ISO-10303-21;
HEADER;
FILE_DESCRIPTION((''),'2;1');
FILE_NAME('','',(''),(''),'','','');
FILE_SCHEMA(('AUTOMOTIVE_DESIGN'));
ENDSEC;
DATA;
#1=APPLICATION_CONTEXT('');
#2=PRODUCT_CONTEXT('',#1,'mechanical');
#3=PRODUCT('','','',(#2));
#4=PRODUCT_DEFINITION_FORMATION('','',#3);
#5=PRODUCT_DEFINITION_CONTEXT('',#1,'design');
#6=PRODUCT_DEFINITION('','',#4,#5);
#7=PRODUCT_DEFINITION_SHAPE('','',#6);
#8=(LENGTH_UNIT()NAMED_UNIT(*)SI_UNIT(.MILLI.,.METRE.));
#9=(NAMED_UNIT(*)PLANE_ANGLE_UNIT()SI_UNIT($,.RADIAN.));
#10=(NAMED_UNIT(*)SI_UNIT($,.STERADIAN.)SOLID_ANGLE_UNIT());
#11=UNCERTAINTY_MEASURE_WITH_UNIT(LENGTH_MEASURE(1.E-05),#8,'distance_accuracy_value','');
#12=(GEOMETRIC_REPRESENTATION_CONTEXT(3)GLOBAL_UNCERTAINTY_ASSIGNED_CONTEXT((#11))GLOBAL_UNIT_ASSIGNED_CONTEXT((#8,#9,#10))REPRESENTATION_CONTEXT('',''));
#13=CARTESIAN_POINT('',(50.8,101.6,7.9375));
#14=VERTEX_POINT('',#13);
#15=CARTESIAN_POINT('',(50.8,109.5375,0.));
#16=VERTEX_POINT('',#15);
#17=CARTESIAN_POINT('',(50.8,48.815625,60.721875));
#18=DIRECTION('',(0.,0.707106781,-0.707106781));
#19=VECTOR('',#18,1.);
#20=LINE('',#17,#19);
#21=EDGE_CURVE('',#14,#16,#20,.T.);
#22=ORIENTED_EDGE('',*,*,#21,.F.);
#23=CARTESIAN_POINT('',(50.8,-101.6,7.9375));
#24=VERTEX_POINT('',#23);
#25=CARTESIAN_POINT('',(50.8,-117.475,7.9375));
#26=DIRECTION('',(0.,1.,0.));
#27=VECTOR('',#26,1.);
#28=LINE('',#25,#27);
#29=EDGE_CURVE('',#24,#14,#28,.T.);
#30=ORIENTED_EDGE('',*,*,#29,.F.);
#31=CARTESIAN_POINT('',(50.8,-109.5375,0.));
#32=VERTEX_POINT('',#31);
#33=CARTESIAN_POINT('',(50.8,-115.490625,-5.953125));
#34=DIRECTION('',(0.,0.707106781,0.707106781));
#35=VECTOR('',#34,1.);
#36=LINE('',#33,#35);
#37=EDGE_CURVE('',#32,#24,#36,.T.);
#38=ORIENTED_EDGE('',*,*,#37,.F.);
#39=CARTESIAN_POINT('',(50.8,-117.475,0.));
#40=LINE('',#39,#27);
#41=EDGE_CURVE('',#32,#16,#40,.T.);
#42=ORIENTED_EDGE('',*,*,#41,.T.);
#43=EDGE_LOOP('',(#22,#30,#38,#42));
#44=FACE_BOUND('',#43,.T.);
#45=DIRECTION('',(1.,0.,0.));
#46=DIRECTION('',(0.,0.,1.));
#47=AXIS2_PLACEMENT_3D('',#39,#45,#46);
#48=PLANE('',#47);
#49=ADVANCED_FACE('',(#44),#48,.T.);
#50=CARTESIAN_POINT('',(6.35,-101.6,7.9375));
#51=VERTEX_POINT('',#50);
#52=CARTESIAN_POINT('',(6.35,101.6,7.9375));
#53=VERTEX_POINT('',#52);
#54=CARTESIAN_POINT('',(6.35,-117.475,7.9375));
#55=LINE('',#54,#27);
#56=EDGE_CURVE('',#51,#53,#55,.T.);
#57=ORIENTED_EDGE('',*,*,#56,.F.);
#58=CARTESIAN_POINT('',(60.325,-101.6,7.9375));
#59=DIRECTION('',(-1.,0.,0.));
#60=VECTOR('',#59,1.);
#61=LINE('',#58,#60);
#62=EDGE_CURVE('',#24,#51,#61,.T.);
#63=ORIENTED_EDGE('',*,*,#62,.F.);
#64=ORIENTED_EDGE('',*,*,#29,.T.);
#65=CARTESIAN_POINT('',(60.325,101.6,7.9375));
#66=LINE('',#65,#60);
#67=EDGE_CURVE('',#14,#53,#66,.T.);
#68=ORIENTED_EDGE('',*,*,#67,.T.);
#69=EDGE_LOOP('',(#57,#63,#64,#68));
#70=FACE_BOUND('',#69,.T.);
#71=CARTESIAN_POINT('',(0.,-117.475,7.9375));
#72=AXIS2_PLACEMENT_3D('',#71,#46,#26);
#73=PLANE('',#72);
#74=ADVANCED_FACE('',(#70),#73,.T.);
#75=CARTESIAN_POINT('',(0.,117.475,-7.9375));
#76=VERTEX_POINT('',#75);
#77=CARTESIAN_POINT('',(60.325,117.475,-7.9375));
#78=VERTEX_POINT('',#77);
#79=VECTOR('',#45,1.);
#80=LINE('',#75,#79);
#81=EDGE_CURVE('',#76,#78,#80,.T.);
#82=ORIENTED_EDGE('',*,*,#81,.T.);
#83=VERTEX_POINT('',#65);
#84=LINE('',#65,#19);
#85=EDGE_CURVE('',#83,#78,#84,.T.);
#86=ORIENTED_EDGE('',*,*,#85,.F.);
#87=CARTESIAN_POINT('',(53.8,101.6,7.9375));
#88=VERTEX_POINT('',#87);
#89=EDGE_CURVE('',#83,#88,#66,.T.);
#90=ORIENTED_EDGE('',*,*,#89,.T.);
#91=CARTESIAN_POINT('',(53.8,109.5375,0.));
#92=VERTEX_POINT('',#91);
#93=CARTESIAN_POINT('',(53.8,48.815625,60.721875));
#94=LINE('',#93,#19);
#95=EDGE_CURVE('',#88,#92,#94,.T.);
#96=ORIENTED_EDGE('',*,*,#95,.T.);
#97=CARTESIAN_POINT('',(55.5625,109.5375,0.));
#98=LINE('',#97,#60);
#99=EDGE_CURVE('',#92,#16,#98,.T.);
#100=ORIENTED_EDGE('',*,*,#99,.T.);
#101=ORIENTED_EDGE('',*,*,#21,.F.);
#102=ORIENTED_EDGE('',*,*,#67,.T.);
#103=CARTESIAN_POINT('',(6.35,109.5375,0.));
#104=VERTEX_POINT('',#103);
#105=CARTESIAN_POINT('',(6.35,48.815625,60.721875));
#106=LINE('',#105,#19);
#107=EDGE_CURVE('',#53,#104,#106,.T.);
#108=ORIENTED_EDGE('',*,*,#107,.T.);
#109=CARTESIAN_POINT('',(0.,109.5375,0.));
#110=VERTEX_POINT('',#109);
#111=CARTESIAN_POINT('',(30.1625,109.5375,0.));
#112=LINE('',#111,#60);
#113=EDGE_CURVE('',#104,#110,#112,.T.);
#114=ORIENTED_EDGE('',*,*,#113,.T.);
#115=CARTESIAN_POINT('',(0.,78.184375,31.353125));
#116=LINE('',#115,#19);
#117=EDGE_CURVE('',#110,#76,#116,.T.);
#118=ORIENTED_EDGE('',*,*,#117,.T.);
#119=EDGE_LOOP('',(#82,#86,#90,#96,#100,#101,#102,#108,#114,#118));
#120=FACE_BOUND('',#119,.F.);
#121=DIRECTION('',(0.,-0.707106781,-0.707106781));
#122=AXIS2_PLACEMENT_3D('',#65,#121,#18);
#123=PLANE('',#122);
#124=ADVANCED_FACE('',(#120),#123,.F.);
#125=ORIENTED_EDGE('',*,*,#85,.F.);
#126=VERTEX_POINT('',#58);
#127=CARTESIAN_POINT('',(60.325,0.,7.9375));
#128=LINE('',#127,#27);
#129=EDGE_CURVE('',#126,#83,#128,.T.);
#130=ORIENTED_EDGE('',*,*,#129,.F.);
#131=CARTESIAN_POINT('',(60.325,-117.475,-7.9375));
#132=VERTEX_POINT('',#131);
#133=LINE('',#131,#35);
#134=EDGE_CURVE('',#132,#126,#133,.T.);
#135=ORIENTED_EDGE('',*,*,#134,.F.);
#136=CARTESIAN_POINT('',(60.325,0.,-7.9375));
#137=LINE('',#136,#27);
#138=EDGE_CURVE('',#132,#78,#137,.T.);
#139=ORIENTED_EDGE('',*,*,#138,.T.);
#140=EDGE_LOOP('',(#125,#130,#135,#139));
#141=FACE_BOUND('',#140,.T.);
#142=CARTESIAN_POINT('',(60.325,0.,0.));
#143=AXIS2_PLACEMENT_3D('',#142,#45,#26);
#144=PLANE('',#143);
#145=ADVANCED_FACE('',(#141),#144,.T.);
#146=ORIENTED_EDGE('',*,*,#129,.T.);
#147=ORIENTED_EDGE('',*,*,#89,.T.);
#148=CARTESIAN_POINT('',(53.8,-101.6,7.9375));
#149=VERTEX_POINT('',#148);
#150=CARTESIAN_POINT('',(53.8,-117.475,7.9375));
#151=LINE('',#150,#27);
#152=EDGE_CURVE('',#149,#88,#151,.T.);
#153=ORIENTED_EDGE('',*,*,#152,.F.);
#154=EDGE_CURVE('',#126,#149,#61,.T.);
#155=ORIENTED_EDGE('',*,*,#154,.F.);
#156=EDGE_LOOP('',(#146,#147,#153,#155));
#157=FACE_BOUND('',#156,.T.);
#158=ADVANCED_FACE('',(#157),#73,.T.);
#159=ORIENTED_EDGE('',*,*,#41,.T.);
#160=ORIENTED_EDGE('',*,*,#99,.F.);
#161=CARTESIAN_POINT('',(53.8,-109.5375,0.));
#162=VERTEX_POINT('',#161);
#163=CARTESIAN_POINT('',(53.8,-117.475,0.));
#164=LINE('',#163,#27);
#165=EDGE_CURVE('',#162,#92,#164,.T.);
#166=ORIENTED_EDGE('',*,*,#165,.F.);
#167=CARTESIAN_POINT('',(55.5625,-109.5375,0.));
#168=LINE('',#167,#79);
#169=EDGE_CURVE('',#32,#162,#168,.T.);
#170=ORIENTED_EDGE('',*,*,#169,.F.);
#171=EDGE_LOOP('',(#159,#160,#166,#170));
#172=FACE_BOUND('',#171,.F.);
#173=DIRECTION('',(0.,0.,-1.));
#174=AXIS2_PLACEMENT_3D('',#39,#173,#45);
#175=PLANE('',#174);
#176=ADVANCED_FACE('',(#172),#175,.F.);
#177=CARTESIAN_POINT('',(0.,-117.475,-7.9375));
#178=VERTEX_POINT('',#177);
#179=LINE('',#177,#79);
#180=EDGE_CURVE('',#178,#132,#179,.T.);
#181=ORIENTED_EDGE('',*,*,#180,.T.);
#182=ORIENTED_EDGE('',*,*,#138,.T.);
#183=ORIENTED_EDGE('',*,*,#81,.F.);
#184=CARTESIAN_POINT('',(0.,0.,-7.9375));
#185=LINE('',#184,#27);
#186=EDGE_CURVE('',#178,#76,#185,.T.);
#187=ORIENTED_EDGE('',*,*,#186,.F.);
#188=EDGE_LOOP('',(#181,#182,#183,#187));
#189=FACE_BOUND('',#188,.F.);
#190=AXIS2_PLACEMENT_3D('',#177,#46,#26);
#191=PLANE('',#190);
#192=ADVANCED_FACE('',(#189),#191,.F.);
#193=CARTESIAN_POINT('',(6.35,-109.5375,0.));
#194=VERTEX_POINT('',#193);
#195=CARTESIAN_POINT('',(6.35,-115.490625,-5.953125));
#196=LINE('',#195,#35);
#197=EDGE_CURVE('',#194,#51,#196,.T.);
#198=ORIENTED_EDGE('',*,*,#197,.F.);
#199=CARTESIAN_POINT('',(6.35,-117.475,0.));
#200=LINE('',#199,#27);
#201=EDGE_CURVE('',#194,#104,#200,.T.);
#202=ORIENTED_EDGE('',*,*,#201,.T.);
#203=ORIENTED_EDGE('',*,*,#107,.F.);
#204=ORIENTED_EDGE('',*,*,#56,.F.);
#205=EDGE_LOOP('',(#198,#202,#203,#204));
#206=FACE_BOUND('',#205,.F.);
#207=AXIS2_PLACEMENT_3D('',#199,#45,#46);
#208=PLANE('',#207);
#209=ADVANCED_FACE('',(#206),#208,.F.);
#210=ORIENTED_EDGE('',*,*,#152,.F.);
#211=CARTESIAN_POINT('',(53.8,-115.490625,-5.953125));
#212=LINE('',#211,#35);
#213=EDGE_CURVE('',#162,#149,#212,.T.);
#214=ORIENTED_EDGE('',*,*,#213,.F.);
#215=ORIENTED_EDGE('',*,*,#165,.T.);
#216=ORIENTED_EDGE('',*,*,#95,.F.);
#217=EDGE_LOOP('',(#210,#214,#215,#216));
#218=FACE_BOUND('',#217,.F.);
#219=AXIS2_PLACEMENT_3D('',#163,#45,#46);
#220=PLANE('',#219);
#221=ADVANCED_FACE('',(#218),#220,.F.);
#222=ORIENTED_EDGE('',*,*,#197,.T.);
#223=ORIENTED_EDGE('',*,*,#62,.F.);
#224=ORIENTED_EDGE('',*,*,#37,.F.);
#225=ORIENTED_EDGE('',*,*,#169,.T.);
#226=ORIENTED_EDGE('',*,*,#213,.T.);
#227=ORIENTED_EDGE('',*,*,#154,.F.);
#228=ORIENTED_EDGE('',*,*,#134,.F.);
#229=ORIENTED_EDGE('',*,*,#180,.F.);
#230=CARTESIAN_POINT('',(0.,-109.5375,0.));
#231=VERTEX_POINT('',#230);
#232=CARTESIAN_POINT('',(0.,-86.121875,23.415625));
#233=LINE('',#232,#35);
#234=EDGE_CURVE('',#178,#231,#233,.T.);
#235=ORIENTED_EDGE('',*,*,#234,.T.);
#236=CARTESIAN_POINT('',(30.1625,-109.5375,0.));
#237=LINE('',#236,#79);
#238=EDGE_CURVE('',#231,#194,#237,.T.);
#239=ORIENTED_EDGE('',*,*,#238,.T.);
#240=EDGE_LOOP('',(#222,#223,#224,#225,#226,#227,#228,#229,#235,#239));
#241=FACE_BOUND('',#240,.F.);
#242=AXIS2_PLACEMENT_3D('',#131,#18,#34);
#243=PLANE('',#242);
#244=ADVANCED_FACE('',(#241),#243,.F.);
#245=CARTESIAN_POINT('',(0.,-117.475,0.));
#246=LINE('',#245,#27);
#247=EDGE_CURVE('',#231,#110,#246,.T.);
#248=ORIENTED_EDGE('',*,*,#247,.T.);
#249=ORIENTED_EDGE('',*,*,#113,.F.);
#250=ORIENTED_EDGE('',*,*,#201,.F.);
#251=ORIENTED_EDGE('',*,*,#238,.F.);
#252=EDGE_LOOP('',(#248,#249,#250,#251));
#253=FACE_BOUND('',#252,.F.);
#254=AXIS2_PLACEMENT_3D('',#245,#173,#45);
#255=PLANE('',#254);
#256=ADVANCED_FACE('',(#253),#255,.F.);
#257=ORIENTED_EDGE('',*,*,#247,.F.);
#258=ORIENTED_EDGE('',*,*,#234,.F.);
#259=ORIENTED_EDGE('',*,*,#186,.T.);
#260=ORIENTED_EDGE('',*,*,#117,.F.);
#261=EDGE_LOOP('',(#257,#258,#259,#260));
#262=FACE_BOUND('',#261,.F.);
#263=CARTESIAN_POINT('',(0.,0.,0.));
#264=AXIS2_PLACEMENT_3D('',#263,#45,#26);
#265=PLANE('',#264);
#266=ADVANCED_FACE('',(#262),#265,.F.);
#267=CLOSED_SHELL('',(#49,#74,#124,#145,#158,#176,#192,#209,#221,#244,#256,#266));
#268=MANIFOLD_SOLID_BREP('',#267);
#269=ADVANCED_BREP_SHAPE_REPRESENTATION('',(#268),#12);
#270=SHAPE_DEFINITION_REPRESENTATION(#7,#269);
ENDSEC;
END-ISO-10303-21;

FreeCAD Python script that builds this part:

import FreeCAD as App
import Part
import Sketcher

V = App.Vector
Q = App.Units.Quantity

doc = App.newDocument("Part")
body = doc.addObject("PartDesign::Body", "Body")

# Sketch on YZ plane
sketch1 = body.newObject("Sketcher::SketchObject", "Sketch")
sketch1.AttachmentSupport = (doc.getObject("YZ_Plane"), [""])
sketch1.MapMode = "FlatFace"
sketch1.addGeometry(Part.LineSegment(V(-117, 8, 0), V(-117, -8, 0)), False)
sketch1.addGeometry(Part.LineSegment(V(-117, -8, 0), V(117, -8, 0)), False)
sketch1.addGeometry(Part.LineSegment(V(117, -8, 0), V(117, 8, 0)), False)
sketch1.addGeometry(Part.LineSegment(V(117, 8, 0), V(-117, 8, 0)), False)
sketch1.addConstraint(Sketcher.Constraint("Coincident", 0, 2, 1, 1))
sketch1.addConstraint(Sketcher.Constraint("Coincident", 1, 2, 2, 1))
sketch1.addConstraint(Sketcher.Constraint("Coincident", 2, 2, 3, 1))
sketch1.addConstraint(Sketcher.Constraint("Coincident", 3, 2, 0, 1))
sketch1.addConstraint(Sketcher.Constraint("Vertical", 0))
sketch1.addConstraint(Sketcher.Constraint("Horizontal", 1))
sketch1.addConstraint(Sketcher.Constraint("Vertical", 2))
sketch1.addConstraint(Sketcher.Constraint("Horizontal", 3))
sketch1.addConstraint(Sketcher.Constraint("Symmetric", 0, 2, 2, 2, -1, 1))
sketch1.addConstraint(Sketcher.Constraint("DistanceX", 1, 1, 1, 2, Q("9.25 in")))
sketch1.addConstraint(Sketcher.Constraint("DistanceY", 0, 2, 0, 1, Q("0.625 in")))
pad1 = body.newObject("PartDesign::Pad", "Pad")
pad1.Profile = sketch1
pad1.Length = Q("2.375 in")

# Sketch on XZ plane
sketch2 = body.newObject("Sketcher::SketchObject", "Sketch001")
sketch2.AttachmentSupport = (doc.getObject("XZ_Plane"), [""])
sketch2.MapMode = "FlatFace"
sketch2.AttachmentOffset = App.Placement(V(0, 0, 4.625 * 25.4), App.Rotation())
sketch2.addGeometry(Part.LineSegment(V(0, 7.9, 0), V(0, 0, 0)), False)
sketch2.addGeometry(Part.LineSegment(V(0, 0, 0), V(6.3, 0, 0)), False)
sketch2.addGeometry(Part.LineSegment(V(6.3, 0, 0), V(6.3, 7.9, 0)), False)
sketch2.addGeometry(Part.LineSegment(V(6.3, 7.9, 0), V(0, 7.9, 0)), False)
sketch2.addGeometry(Part.LineSegment(V(50.8, 7.9, 0), V(50.8, 0, 0)), False)
sketch2.addGeometry(Part.LineSegment(V(50.8, 0, 0), V(53.8, 0, 0)), False)
sketch2.addGeometry(Part.LineSegment(V(53.8, 0, 0), V(53.8, 7.9, 0)), False)
sketch2.addGeometry(Part.LineSegment(V(53.8, 7.9, 0), V(50.8, 7.9, 0)), False)
sketch2.addConstraint(Sketcher.Constraint("Coincident", 0, 2, 1, 1))
sketch2.addConstraint(Sketcher.Constraint("Coincident", 1, 2, 2, 1))
sketch2.addConstraint(Sketcher.Constraint("Coincident", 2, 2, 3, 1))
sketch2.addConstraint(Sketcher.Constraint("Coincident", 3, 2, 0, 1))
sketch2.addConstraint(Sketcher.Constraint("Coincident", 4, 2, 5, 1))
sketch2.addConstraint(Sketcher.Constraint("Coincident", 5, 2, 6, 1))
sketch2.addConstraint(Sketcher.Constraint("Coincident", 6, 2, 7, 1))
sketch2.addConstraint(Sketcher.Constraint("Coincident", 7, 2, 4, 1))
sketch2.addConstraint(Sketcher.Constraint("Vertical", 0))
sketch2.addConstraint(Sketcher.Constraint("Horizontal", 1))
sketch2.addConstraint(Sketcher.Constraint("Vertical", 2))
sketch2.addConstraint(Sketcher.Constraint("Horizontal", 3))
sketch2.addConstraint(Sketcher.Constraint("Vertical", 4))
sketch2.addConstraint(Sketcher.Constraint("Horizontal", 5))
sketch2.addConstraint(Sketcher.Constraint("Vertical", 6))
sketch2.addConstraint(Sketcher.Constraint("Horizontal", 7))
sketch2.addConstraint(Sketcher.Constraint("Coincident", 0, 2, -1, 1))
sketch2.addConstraint(Sketcher.Constraint("PointOnObject", 4, 2, -1))
sketch2.addConstraint(Sketcher.Constraint("Horizontal", 3, 2, 6, 2))
sketch2.addConstraint(Sketcher.Constraint("DistanceX", -1, 1, 4, 2, Q("2 in")))
sketch2.addConstraint(Sketcher.Constraint("DistanceX", 1, 1, 1, 2, Q("0.25 in")))
sketch2.addConstraint(Sketcher.Constraint("DistanceY", 0, 2, 0, 1, Q("0.3125 in")))
sketch2.addConstraint(Sketcher.Constraint("DistanceX", 5, 1, 5, 2, Q("3 mm")))
pocket1 = body.newObject("PartDesign::Pocket", "Pocket")
pocket1.Profile = sketch2
pocket1.Type = "ThroughAll"

# Sketch on YZ plane
sketch3 = body.newObject("Sketcher::SketchObject", "Sketch002")
sketch3.AttachmentSupport = (doc.getObject("YZ_Plane"), [""])
sketch3.MapMode = "FlatFace"
sketch3.AttachmentOffset = App.Placement(V(0, 0, 2.375 * 25.4), App.Rotation())
sketch3.addGeometry(Part.LineSegment(V(-117, 8, 0), V(-117, -8, 0)), False)
sketch3.addGeometry(Part.LineSegment(V(-117, -8, 0), V(-102, 8, 0)), False)
sketch3.addGeometry(Part.LineSegment(V(-102, 8, 0), V(-117, 8, 0)), False)
sketch3.addGeometry(Part.LineSegment(V(102, 8, 0), V(117, -8, 0)), False)
sketch3.addGeometry(Part.LineSegment(V(117, -8, 0), V(117, 8, 0)), False)
sketch3.addGeometry(Part.LineSegment(V(117, 8, 0), V(102, 8, 0)), False)
sketch3.addConstraint(Sketcher.Constraint("Coincident", 0, 2, 1, 1))
sketch3.addConstraint(Sketcher.Constraint("Coincident", 1, 2, 2, 1))
sketch3.addConstraint(Sketcher.Constraint("Coincident", 2, 2, 0, 1))
sketch3.addConstraint(Sketcher.Constraint("Coincident", 3, 2, 4, 1))
sketch3.addConstraint(Sketcher.Constraint("Coincident", 4, 2, 5, 1))
sketch3.addConstraint(Sketcher.Constraint("Coincident", 5, 2, 3, 1))
sketch3.addConstraint(Sketcher.Constraint("Vertical", 0))
sketch3.addConstraint(Sketcher.Constraint("Horizontal", 2))
sketch3.addConstraint(Sketcher.Constraint("Vertical", 4))
sketch3.addConstraint(Sketcher.Constraint("Horizontal", 5))
sketch3.addConstraint(Sketcher.Constraint("Symmetric", 2, 2, 3, 2, -1, 1))
sketch3.addConstraint(Sketcher.Constraint("Symmetric", 1, 2, 5, 2, -2))
sketch3.addConstraint(Sketcher.Constraint("Perpendicular", 1, 3))
sketch3.addConstraint(Sketcher.Constraint("Horizontal", 0, 2, 3, 2))
sketch3.addConstraint(Sketcher.Constraint("DistanceX", 1, 2, -1, 1, Q("4 in")))
sketch3.addConstraint(Sketcher.Constraint("DistanceX", 2, 2, 2, 1, Q("0.625 in")))
pocket2 = body.newObject("PartDesign::Pocket", "Pocket001")
pocket2.Profile = sketch3
pocket2.Type = "ThroughAll"

doc.recompute()
